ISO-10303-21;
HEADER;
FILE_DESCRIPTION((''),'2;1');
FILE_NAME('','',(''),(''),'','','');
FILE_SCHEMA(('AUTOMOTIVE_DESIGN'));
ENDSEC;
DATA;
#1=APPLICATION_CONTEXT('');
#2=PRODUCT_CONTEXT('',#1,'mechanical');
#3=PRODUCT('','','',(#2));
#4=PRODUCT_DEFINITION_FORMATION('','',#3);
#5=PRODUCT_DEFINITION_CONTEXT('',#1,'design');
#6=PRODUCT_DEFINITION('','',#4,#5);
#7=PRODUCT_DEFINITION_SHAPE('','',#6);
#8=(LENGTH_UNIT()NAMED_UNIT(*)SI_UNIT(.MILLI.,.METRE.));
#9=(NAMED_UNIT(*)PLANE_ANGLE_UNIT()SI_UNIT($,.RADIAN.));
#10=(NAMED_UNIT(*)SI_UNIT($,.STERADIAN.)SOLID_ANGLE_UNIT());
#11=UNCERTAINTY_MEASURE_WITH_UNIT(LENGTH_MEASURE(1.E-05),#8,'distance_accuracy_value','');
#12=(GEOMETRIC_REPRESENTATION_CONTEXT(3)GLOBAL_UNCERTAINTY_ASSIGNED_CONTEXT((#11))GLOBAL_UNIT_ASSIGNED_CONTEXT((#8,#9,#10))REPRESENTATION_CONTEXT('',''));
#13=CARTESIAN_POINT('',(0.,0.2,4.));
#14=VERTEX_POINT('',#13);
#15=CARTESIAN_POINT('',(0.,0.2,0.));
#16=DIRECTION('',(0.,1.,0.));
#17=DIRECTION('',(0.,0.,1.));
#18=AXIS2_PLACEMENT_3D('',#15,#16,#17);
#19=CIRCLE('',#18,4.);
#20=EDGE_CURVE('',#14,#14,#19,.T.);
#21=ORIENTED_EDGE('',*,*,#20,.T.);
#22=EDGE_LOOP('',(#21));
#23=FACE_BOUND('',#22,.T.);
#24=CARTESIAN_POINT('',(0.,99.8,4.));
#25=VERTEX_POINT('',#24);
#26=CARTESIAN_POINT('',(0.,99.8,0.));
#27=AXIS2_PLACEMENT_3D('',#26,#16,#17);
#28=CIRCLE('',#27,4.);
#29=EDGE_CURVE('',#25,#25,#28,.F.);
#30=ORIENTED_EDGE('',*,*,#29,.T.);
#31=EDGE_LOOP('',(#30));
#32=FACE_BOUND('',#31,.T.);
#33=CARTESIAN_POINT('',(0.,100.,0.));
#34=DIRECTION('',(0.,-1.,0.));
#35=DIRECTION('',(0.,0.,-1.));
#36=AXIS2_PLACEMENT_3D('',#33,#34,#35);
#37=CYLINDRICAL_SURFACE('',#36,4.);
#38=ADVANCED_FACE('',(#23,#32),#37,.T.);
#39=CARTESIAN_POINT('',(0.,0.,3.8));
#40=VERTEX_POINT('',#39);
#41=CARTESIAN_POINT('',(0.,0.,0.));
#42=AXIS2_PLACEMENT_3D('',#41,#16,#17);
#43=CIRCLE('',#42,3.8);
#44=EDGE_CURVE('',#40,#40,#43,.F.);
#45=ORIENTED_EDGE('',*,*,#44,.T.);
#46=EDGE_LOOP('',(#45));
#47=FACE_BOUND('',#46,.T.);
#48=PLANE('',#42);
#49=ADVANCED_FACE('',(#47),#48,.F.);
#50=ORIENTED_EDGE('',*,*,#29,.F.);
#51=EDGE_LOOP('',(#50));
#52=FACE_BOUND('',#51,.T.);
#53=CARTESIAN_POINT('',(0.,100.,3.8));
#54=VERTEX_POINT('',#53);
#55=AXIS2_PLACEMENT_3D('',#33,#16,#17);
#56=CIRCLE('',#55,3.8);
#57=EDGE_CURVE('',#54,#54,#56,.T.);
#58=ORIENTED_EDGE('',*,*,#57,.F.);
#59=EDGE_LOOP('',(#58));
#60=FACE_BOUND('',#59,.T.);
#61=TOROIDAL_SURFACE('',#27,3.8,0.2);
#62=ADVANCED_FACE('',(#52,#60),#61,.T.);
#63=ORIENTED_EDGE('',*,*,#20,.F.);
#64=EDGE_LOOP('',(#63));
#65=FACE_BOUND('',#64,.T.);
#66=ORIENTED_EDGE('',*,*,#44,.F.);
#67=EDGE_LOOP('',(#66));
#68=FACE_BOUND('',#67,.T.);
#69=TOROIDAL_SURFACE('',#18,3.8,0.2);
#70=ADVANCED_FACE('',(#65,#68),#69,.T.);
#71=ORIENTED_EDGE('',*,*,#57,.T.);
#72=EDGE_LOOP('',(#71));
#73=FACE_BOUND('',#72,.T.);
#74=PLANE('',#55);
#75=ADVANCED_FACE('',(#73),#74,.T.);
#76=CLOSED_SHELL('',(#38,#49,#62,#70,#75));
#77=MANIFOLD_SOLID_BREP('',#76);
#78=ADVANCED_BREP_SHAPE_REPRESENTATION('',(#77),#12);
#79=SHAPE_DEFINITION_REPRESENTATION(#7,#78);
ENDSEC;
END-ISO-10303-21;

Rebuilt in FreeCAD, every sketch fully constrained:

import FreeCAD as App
import Part
import Sketcher
Q = App.Units.Quantity


def edges_at(feature, points):
    """Names of the edges that pass closest to the given points."""
    edges = feature.Shape.Edges
    near = lambda p: min(range(len(edges)), key=lambda i: edges[i].distToShape(Part.Vertex(*p))[0])
    return sorted({f"Edge{near(p) + 1}" for p in points})

doc = App.newDocument("Part")
body = doc.addObject("PartDesign::Body", "Body")

# Sketch on XZ plane
sketch1 = body.newObject("Sketcher::SketchObject", "Sketch")
sketch1.AttachmentSupport = (doc.getObject("XZ_Plane"), [""])
sketch1.MapMode = "FlatFace"
sketch1.addGeometry(Part.Circle(App.Vector(0, 0, 0), App.Vector(0, 0, 1), 4), False)
sketch1.addConstraint([
    Sketcher.Constraint("Coincident", 0, 3, -1, 1),
    Sketcher.Constraint("Diameter", 0, Q("8 mm")),
])
pad1 = body.newObject("PartDesign::Pad", "Pad")
pad1.Profile = sketch1
pad1.Length = 100
pad1.Reversed = True
doc.recompute()

fillet = body.newObject("PartDesign::Fillet", "Fillet")
fillet.Base = (pad1, edges_at(pad1, [(-4, 0, 0), (-4, 100, 0)]))
fillet.Radius = 0.2

doc.recompute()
